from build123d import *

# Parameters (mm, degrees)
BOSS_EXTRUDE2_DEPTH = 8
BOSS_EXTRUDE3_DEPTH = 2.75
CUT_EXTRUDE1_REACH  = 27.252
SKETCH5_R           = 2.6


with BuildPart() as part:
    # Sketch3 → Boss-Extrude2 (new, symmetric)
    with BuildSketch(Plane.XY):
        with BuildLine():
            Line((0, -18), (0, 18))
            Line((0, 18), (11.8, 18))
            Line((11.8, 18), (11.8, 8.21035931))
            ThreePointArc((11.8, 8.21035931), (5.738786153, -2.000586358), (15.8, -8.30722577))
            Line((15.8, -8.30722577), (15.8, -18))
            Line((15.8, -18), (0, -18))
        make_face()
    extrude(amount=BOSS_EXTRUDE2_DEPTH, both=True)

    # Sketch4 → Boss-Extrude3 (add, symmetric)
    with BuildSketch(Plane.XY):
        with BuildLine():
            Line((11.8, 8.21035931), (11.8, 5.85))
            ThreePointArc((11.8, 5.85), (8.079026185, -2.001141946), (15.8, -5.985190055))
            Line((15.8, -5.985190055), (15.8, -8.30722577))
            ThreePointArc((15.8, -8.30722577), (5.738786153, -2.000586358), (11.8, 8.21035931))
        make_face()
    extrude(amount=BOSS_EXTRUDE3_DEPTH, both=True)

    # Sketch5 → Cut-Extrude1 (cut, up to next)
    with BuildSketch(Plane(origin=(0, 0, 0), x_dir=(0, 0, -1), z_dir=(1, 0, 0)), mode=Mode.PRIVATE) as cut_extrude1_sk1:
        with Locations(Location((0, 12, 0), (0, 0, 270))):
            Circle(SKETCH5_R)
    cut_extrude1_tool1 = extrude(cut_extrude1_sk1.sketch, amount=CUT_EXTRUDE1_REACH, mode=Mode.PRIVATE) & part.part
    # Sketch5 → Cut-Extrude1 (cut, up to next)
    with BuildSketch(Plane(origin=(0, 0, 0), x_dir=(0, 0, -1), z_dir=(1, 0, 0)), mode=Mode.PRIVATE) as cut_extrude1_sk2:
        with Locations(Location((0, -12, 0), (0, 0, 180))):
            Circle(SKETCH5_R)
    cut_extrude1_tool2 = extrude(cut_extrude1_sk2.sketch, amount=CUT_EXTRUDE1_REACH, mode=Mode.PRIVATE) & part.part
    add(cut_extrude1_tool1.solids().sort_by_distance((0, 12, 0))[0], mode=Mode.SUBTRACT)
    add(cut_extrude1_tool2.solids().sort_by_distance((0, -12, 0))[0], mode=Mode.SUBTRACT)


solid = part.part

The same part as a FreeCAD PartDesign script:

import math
import FreeCAD as App
import Part
import Sketcher

doc = App.newDocument("Part")
body = doc.addObject("PartDesign::Body", "Body")

# Sketch on XY plane
sketch1 = body.newObject("Sketcher::SketchObject", "Sketch")
sketch1.AttachmentSupport = (doc.getObject("XY_Plane"), [""])
sketch1.MapMode = "FlatFace"
sketch1.addGeometry([
    Part.LineSegment(App.Vector(0, 18, 0), App.Vector(0, -18, 0)),  # 0
    Part.LineSegment(App.Vector(0, -18, 0), App.Vector(16, -18, 0)),  # 1
    Part.LineSegment(App.Vector(16, -18, 0), App.Vector(16, -8, 0)),  # 2
    Part.ArcOfCircle(Part.Circle(App.Vector(14, 0, 0), App.Vector(0, 0, 1), 8), math.radians(105), math.radians(282)),  # 3
    Part.LineSegment(App.Vector(12, 8, 0), App.Vector(12, 18, 0)),  # 4
    Part.LineSegment(App.Vector(12, 18, 0), App.Vector(0, 18, 0)),  # 5
], False)
sketch1.addConstraint([
    Sketcher.Constraint("Coincident", 0, 2, 1, 1),
    Sketcher.Constraint("Coincident", 1, 2, 2, 1),
    Sketcher.Constraint("Coincident", 2, 2, 3, 2),
    Sketcher.Constraint("Coincident", 3, 1, 4, 1),
    Sketcher.Constraint("Coincident", 4, 2, 5, 1),
    Sketcher.Constraint("Coincident", 5, 2, 0, 1),
    Sketcher.Constraint("Vertical", 0),
    Sketcher.Constraint("Horizontal", 1),
    Sketcher.Constraint("Vertical", 2),
    Sketcher.Constraint("Vertical", 4),
    Sketcher.Constraint("Horizontal", 5),
    Sketcher.Constraint("Symmetric", 0, 2, 5, 2, -1, 1),
    Sketcher.Constraint("PointOnObject", 3, 3, -1),
    Sketcher.Constraint("Radius", 3, 8.5),
    Sketcher.Constraint("DistanceY", 0, 2, 0, 1, 36.0),
    Sketcher.Constraint("DistanceX", 1, 1, 1, 2, 15.8),
    Sketcher.Constraint("DistanceX", 5, 2, 5, 1, 11.8),
    Sketcher.Constraint("DistanceX", -1, 1, 3, 3, 14.0),
])
pad1 = body.newObject("PartDesign::Pad", "Pad")
pad1.Profile = sketch1
pad1.Length = 16
pad1.Midplane = True

# Sketch on XY plane
sketch2 = body.newObject("Sketcher::SketchObject", "Sketch001")
sketch2.AttachmentSupport = (doc.getObject("XY_Plane"), [""])
sketch2.MapMode = "FlatFace"
sketch2.addGeometry([
    Part.LineSegment(App.Vector(11.8, 5.8, 0), App.Vector(11.8, 8.2, 0)),
    Part.ArcOfCircle(Part.Circle(App.Vector(14, 0, 0), App.Vector(0, 0, 1), 8.5), math.radians(105), math.radians(282)),
    Part.LineSegment(App.Vector(15.8, -8.3, 0), App.Vector(15.8, -6, 0)),
    Part.ArcOfCircle(Part.Circle(App.Vector(14, 0, 0), App.Vector(0, 0, 1), 6.2), math.radians(111), math.radians(287)),
], False)
sketch2.addConstraint([
    Sketcher.Constraint("Coincident", 0, 2, 1, 1),
    Sketcher.Constraint("Coincident", 1, 2, 2, 1),
    Sketcher.Constraint("Coincident", 2, 2, 3, 2),
    Sketcher.Constraint("Coincident", 3, 1, 0, 1),
    Sketcher.Constraint("Vertical", 0),
    Sketcher.Constraint("Vertical", 2),
    Sketcher.Constraint("Coincident", 3, 3, 1, 3),
    Sketcher.Constraint("PointOnObject", 1, 3, -1),
    Sketcher.Constraint("Radius", 1, 8.5),
    Sketcher.Constraint("Radius", 3, 6.25),
    Sketcher.Constraint("DistanceX", -1, 1, 1, 3, 14.0),
    Sketcher.Constraint("DistanceX", 0, 2, 1, 2, 4.0),
    Sketcher.Constraint("DistanceX", -1, 1, 0, 2, 11.8),
])
pad2 = body.newObject("PartDesign::Pad", "Pad001")
pad2.Profile = sketch2
pad2.Length = 5.5
pad2.Midplane = True

# Sketch on YZ plane
sketch3 = body.newObject("Sketcher::SketchObject", "Sketch002")
sketch3.AttachmentSupport = (doc.getObject("YZ_Plane"), [""])
sketch3.MapMode = "FlatFace"
sketch3.addGeometry(Part.Circle(App.Vector(12, 0, 0), App.Vector(0, 0, 1), 2.6), False)
sketch3.addConstraint([
    Sketcher.Constraint("PointOnObject", 0, 3, -1),
    Sketcher.Constraint("Diameter", 0, 5.2),
    Sketcher.Constraint("DistanceX", -1, 1, 0, 3, 12.0),
])
pocket1 = body.newObject("PartDesign::Pocket", "Pocket")
pocket1.Profile = sketch3
pocket1.Type = "UpToFirst"
pocket1.Reversed = True

# Sketch on YZ plane
sketch4 = body.newObject("Sketcher::SketchObject", "Sketch003")
sketch4.AttachmentSupport = (doc.getObject("YZ_Plane"), [""])
sketch4.MapMode = "FlatFace"
sketch4.addGeometry(Part.Circle(App.Vector(-12, 0, 0), App.Vector(0, 0, 1), 2.6), False)
sketch4.addConstraint([
    Sketcher.Constraint("PointOnObject", 0, 3, -1),
    Sketcher.Constraint("Diameter", 0, 5.2),
    Sketcher.Constraint("DistanceX", 0, 3, -1, 1, 12.0),
])
pocket2 = body.newObject("PartDesign::Pocket", "Pocket001")
pocket2.Profile = sketch4
pocket2.Type = "UpToFirst"
pocket2.Reversed = True

doc.recompute()
